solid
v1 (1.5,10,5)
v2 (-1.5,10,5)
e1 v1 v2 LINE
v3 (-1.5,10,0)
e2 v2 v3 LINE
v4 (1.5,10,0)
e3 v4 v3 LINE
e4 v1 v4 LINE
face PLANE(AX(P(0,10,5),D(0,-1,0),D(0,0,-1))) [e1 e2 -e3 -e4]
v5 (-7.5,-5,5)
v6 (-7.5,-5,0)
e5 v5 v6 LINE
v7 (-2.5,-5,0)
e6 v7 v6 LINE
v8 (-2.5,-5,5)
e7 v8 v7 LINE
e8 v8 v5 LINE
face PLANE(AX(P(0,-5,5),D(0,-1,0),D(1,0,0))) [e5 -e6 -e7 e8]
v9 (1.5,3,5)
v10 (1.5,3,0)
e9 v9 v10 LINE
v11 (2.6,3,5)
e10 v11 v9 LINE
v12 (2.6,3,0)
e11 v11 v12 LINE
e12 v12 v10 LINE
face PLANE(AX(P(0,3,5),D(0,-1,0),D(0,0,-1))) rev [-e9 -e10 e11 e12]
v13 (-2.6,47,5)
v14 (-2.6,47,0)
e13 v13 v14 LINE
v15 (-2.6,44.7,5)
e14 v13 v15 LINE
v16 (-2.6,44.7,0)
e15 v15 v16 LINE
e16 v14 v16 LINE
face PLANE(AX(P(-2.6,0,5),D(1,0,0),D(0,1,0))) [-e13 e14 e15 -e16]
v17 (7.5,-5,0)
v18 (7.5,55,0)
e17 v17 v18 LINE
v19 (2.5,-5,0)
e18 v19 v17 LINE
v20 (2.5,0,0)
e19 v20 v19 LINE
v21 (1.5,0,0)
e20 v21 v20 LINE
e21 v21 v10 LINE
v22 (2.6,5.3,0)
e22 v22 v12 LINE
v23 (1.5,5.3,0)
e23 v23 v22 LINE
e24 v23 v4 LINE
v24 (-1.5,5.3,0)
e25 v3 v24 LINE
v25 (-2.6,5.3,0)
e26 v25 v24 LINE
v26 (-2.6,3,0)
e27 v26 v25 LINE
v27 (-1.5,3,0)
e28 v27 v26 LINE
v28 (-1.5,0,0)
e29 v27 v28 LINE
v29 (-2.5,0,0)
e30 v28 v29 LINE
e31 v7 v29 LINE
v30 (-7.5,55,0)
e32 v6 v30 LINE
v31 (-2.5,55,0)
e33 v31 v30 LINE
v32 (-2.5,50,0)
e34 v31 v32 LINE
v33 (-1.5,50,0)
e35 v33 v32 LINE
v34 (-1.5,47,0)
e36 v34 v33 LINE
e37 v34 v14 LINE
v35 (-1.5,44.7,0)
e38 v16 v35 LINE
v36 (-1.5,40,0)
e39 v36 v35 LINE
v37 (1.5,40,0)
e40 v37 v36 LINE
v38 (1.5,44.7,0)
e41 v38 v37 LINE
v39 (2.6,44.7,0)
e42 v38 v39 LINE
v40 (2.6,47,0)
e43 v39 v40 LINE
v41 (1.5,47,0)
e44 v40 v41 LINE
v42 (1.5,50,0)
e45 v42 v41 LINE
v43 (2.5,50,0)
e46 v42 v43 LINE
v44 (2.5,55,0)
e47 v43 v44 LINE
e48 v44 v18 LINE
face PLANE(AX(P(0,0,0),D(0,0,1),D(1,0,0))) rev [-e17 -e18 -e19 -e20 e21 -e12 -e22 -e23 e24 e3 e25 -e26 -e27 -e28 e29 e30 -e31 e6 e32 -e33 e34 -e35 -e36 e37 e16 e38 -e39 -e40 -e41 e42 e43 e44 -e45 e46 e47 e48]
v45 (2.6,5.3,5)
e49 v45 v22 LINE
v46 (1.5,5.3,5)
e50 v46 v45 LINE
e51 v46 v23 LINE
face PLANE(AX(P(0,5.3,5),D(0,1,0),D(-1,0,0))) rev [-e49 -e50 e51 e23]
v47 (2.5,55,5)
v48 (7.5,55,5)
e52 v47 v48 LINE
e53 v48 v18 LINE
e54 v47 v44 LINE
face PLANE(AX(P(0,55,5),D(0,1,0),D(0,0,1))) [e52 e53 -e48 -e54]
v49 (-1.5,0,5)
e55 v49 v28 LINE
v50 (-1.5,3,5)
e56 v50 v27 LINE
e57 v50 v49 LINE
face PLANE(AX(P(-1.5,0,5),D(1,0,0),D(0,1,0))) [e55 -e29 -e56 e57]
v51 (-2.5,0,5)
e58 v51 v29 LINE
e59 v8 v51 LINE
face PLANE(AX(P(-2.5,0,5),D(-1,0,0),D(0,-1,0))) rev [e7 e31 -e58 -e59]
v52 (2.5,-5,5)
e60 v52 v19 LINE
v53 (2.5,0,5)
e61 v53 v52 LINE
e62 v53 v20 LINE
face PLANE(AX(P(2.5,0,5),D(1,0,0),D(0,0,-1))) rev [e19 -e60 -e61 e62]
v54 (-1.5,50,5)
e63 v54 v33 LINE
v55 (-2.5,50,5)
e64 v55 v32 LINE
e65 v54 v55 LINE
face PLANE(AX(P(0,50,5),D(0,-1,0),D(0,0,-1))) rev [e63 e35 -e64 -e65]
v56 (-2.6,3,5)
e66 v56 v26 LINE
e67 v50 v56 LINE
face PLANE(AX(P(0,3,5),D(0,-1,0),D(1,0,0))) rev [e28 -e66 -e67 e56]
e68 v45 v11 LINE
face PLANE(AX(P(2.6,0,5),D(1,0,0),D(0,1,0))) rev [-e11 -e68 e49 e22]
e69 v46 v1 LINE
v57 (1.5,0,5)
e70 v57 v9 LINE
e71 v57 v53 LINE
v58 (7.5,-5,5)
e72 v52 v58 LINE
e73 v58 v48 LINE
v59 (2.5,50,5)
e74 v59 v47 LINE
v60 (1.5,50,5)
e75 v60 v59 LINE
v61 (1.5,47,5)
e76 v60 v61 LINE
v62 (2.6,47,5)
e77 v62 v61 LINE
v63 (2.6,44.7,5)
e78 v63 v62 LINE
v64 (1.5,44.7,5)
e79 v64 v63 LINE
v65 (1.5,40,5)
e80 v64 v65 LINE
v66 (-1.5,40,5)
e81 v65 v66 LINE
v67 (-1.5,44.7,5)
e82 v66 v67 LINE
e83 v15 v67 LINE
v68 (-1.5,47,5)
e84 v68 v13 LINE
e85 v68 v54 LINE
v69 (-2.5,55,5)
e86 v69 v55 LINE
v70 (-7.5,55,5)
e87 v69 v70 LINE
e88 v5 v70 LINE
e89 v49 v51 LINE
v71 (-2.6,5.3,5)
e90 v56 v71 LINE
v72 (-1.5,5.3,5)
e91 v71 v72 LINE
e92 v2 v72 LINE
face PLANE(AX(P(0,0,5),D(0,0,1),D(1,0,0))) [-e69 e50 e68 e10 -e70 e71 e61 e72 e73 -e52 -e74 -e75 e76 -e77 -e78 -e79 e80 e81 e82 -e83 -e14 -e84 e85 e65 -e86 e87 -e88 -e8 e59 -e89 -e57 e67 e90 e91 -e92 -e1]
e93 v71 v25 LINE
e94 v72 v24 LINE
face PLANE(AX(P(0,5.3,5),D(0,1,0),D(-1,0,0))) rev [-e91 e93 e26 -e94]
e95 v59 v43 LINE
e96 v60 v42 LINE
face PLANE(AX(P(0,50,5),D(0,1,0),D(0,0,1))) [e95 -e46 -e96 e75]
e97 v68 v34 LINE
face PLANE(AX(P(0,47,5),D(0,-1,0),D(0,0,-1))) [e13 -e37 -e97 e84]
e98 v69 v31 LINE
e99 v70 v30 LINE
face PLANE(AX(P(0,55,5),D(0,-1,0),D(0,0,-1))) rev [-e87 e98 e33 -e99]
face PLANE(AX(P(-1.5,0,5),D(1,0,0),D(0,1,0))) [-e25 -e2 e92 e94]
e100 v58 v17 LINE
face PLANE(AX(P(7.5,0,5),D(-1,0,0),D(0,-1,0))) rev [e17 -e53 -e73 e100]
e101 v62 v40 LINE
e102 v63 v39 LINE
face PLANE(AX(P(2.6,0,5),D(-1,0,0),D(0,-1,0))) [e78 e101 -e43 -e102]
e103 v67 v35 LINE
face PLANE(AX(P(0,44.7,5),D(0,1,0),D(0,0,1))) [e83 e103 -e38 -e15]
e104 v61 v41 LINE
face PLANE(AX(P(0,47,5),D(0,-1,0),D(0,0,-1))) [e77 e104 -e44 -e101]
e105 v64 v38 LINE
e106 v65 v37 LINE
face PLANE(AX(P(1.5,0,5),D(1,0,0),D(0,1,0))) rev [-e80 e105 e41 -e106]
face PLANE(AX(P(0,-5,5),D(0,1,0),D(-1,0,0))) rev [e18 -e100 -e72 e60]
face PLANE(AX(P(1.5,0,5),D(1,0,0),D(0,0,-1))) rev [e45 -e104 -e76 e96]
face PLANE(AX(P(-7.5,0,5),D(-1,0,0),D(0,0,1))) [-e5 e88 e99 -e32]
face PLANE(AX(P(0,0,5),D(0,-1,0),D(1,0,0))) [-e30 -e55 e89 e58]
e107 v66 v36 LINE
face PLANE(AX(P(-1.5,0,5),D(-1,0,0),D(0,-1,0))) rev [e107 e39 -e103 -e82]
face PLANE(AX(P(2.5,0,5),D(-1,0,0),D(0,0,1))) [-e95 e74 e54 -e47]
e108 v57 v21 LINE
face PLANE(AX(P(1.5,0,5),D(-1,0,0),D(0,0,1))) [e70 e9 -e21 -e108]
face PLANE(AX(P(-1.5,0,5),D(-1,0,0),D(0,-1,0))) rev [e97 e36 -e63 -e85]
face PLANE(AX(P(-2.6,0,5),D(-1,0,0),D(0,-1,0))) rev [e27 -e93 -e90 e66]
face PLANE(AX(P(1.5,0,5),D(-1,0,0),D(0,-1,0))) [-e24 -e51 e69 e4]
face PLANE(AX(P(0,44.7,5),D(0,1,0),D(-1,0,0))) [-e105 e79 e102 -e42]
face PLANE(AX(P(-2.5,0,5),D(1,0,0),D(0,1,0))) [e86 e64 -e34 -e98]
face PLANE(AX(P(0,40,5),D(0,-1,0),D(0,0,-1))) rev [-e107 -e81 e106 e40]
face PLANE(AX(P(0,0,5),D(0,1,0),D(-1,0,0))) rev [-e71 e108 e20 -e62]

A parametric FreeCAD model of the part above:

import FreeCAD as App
import Part
import Sketcher
from FreeCAD import Vector
Q = App.Units.Quantity


def add_polygon(sketch, points):
    """Adds a closed chain of lines whose ends are joined by coincident constraints."""
    first, n = sketch.GeometryCount, len(points)
    for a, b in zip(points, points[1:] + points[:1]):
        sketch.addGeometry(Part.LineSegment(App.Vector(*a, 0), App.Vector(*b, 0)), False)
    for i in range(n):
        sketch.addConstraint(Sketcher.Constraint("Coincident", first + i, 2, first + (i + 1) % n, 1))

doc = App.newDocument("Part")
body = doc.addObject("PartDesign::Body", "Body")

sketch1 = body.newObject("Sketcher::SketchObject", "Sketch")
sketch1.AttachmentSupport = (doc.getObject("XY_Plane"), [""])
sketch1.MapMode = "FlatFace"
add_polygon(sketch1, [(7.5, 55), (2.5, 55), (2.5, 50), (1.5, 50), (1.5, 47), (2.6, 47), (2.6, 44.7), (1.5, 44.7), (1.5, 40), (-1.5, 40), (-1.5, 44.7), (-2.6, 44.7), (-2.6, 47), (-1.5, 47), (-1.5, 50), (-2.5, 50), (-2.5, 55), (-7.5, 55), (-7.5, -5), (-2.5, -5), (-2.5, 0), (-1.5, 0), (-1.5, 3), (-2.6, 3), (-2.6, 5.3), (-1.5, 5.3), (-1.5, 10), (1.5, 10), (1.5, 5.3), (2.6, 5.3), (2.6, 3), (1.5, 3), (1.5, 0), (2.5, 0), (2.5, -5), (7.5, -5)])
sketch1.addConstraint(Sketcher.Constraint("Horizontal", 0))
sketch1.addConstraint(Sketcher.Constraint("Vertical", 1))
sketch1.addConstraint(Sketcher.Constraint("Horizontal", 2))
sketch1.addConstraint(Sketcher.Constraint("Vertical", 3))
sketch1.addConstraint(Sketcher.Constraint("Horizontal", 4))
sketch1.addConstraint(Sketcher.Constraint("Vertical", 5))
sketch1.addConstraint(Sketcher.Constraint("Horizontal", 6))
sketch1.addConstraint(Sketcher.Constraint("Vertical", 7))
sketch1.addConstraint(Sketcher.Constraint("Horizontal", 8))
sketch1.addConstraint(Sketcher.Constraint("Vertical", 9))
sketch1.addConstraint(Sketcher.Constraint("Horizontal", 10))
sketch1.addConstraint(Sketcher.Constraint("Vertical", 11))
sketch1.addConstraint(Sketcher.Constraint("Horizontal", 12))
sketch1.addConstraint(Sketcher.Constraint("Vertical", 13))
sketch1.addConstraint(Sketcher.Constraint("Horizontal", 14))
sketch1.addConstraint(Sketcher.Constraint("Vertical", 15))
sketch1.addConstraint(Sketcher.Constraint("Horizontal", 16))
sketch1.addConstraint(Sketcher.Constraint("Vertical", 17))
sketch1.addConstraint(Sketcher.Constraint("Horizontal", 18))
sketch1.addConstraint(Sketcher.Constraint("Vertical", 19))
sketch1.addConstraint(Sketcher.Constraint("Horizontal", 20))
sketch1.addConstraint(Sketcher.Constraint("Vertical", 21))
sketch1.addConstraint(Sketcher.Constraint("Horizontal", 22))
sketch1.addConstraint(Sketcher.Constraint("Vertical", 23))
sketch1.addConstraint(Sketcher.Constraint("Horizontal", 24))
sketch1.addConstraint(Sketcher.Constraint("Vertical", 25))
sketch1.addConstraint(Sketcher.Constraint("Horizontal", 26))
sketch1.addConstraint(Sketcher.Constraint("Vertical", 27))
sketch1.addConstraint(Sketcher.Constraint("Horizontal", 28))
sketch1.addConstraint(Sketcher.Constraint("Vertical", 29))
sketch1.addConstraint(Sketcher.Constraint("Horizontal", 30))
sketch1.addConstraint(Sketcher.Constraint("Vertical", 31))
sketch1.addConstraint(Sketcher.Constraint("Horizontal", 32))
sketch1.addConstraint(Sketcher.Constraint("Vertical", 33))
sketch1.addConstraint(Sketcher.Constraint("Horizontal", 34))
sketch1.addConstraint(Sketcher.Constraint("Vertical", 35))
sketch1.addConstraint(Sketcher.Constraint("Symmetric", 20, 2, 31, 2, -1, 1))
sketch1.addConstraint(Sketcher.Constraint("Symmetric", 6, 2, 9, 2, -2))
sketch1.addConstraint(Sketcher.Constraint("Symmetric", 4, 2, 11, 2, -2))
sketch1.addConstraint(Sketcher.Constraint("Symmetric", 2, 2, 13, 2, -2))
sketch1.addConstraint(Sketcher.Constraint("Symmetric", 0, 2, 15, 2, -2))
sketch1.addConstraint(Sketcher.Constraint("Symmetric", 24, 2, 27, 2, -2))
sketch1.addConstraint(Sketcher.Constraint("Symmetric", 22, 2, 29, 2, -2))
sketch1.addConstraint(Sketcher.Constraint("Symmetric", 19, 2, 32, 2, -2))
sketch1.addConstraint(Sketcher.Constraint("Symmetric", 17, 2, 34, 2, -2))
sketch1.addConstraint(Sketcher.Constraint("Vertical", 3, 2, 6, 2))
sketch1.addConstraint(Sketcher.Constraint("Vertical", 15, 2, 18, 2))
sketch1.addConstraint(Sketcher.Constraint("Vertical", 13, 2, 20, 2))
sketch1.addConstraint(Sketcher.Constraint("Vertical", 11, 2, 22, 2))
sketch1.addConstraint(Sketcher.Constraint("Vertical", 21, 2, 24, 2))
sketch1.addConstraint(Sketcher.Constraint("Equal", 34, 1))
sketch1.addConstraint(Sketcher.Constraint("Equal", 26, 3))
sketch1.addConstraint(Sketcher.Constraint("Equal", 15, 19))
sketch1.addConstraint(Sketcher.Constraint("Equal", 13, 21))
sketch1.addConstraint(Sketcher.Constraint("Equal", 11, 23))
sketch1.addConstraint(Sketcher.Constraint("Equal", 9, 25))
sketch1.addConstraint(Sketcher.Constraint("DistanceX", 0, 2, 0, 1, Q("5 mm")))
sketch1.addConstraint(Sketcher.Constraint("DistanceX", 2, 2, 2, 1, Q("1 mm")))
sketch1.addConstraint(Sketcher.Constraint("DistanceX", 8, 2, 8, 1, Q("3 mm")))
sketch1.addConstraint(Sketcher.Constraint("DistanceY", 17, 2, 17, 1, Q("60 mm")))
sketch1.addConstraint(Sketcher.Constraint("DistanceX", 4, 1, 4, 2, Q("1.1 mm")))
sketch1.addConstraint(Sketcher.Constraint("DistanceY", 5, 2, 5, 1, Q("2.3 mm")))
sketch1.addConstraint(Sketcher.Constraint("DistanceY", 7, 2, 7, 1, Q("4.7 mm")))
pad1 = body.newObject("PartDesign::Pad", "Pad")
pad1.Profile = sketch1
pad1.Length = 5

doc.recompute()
